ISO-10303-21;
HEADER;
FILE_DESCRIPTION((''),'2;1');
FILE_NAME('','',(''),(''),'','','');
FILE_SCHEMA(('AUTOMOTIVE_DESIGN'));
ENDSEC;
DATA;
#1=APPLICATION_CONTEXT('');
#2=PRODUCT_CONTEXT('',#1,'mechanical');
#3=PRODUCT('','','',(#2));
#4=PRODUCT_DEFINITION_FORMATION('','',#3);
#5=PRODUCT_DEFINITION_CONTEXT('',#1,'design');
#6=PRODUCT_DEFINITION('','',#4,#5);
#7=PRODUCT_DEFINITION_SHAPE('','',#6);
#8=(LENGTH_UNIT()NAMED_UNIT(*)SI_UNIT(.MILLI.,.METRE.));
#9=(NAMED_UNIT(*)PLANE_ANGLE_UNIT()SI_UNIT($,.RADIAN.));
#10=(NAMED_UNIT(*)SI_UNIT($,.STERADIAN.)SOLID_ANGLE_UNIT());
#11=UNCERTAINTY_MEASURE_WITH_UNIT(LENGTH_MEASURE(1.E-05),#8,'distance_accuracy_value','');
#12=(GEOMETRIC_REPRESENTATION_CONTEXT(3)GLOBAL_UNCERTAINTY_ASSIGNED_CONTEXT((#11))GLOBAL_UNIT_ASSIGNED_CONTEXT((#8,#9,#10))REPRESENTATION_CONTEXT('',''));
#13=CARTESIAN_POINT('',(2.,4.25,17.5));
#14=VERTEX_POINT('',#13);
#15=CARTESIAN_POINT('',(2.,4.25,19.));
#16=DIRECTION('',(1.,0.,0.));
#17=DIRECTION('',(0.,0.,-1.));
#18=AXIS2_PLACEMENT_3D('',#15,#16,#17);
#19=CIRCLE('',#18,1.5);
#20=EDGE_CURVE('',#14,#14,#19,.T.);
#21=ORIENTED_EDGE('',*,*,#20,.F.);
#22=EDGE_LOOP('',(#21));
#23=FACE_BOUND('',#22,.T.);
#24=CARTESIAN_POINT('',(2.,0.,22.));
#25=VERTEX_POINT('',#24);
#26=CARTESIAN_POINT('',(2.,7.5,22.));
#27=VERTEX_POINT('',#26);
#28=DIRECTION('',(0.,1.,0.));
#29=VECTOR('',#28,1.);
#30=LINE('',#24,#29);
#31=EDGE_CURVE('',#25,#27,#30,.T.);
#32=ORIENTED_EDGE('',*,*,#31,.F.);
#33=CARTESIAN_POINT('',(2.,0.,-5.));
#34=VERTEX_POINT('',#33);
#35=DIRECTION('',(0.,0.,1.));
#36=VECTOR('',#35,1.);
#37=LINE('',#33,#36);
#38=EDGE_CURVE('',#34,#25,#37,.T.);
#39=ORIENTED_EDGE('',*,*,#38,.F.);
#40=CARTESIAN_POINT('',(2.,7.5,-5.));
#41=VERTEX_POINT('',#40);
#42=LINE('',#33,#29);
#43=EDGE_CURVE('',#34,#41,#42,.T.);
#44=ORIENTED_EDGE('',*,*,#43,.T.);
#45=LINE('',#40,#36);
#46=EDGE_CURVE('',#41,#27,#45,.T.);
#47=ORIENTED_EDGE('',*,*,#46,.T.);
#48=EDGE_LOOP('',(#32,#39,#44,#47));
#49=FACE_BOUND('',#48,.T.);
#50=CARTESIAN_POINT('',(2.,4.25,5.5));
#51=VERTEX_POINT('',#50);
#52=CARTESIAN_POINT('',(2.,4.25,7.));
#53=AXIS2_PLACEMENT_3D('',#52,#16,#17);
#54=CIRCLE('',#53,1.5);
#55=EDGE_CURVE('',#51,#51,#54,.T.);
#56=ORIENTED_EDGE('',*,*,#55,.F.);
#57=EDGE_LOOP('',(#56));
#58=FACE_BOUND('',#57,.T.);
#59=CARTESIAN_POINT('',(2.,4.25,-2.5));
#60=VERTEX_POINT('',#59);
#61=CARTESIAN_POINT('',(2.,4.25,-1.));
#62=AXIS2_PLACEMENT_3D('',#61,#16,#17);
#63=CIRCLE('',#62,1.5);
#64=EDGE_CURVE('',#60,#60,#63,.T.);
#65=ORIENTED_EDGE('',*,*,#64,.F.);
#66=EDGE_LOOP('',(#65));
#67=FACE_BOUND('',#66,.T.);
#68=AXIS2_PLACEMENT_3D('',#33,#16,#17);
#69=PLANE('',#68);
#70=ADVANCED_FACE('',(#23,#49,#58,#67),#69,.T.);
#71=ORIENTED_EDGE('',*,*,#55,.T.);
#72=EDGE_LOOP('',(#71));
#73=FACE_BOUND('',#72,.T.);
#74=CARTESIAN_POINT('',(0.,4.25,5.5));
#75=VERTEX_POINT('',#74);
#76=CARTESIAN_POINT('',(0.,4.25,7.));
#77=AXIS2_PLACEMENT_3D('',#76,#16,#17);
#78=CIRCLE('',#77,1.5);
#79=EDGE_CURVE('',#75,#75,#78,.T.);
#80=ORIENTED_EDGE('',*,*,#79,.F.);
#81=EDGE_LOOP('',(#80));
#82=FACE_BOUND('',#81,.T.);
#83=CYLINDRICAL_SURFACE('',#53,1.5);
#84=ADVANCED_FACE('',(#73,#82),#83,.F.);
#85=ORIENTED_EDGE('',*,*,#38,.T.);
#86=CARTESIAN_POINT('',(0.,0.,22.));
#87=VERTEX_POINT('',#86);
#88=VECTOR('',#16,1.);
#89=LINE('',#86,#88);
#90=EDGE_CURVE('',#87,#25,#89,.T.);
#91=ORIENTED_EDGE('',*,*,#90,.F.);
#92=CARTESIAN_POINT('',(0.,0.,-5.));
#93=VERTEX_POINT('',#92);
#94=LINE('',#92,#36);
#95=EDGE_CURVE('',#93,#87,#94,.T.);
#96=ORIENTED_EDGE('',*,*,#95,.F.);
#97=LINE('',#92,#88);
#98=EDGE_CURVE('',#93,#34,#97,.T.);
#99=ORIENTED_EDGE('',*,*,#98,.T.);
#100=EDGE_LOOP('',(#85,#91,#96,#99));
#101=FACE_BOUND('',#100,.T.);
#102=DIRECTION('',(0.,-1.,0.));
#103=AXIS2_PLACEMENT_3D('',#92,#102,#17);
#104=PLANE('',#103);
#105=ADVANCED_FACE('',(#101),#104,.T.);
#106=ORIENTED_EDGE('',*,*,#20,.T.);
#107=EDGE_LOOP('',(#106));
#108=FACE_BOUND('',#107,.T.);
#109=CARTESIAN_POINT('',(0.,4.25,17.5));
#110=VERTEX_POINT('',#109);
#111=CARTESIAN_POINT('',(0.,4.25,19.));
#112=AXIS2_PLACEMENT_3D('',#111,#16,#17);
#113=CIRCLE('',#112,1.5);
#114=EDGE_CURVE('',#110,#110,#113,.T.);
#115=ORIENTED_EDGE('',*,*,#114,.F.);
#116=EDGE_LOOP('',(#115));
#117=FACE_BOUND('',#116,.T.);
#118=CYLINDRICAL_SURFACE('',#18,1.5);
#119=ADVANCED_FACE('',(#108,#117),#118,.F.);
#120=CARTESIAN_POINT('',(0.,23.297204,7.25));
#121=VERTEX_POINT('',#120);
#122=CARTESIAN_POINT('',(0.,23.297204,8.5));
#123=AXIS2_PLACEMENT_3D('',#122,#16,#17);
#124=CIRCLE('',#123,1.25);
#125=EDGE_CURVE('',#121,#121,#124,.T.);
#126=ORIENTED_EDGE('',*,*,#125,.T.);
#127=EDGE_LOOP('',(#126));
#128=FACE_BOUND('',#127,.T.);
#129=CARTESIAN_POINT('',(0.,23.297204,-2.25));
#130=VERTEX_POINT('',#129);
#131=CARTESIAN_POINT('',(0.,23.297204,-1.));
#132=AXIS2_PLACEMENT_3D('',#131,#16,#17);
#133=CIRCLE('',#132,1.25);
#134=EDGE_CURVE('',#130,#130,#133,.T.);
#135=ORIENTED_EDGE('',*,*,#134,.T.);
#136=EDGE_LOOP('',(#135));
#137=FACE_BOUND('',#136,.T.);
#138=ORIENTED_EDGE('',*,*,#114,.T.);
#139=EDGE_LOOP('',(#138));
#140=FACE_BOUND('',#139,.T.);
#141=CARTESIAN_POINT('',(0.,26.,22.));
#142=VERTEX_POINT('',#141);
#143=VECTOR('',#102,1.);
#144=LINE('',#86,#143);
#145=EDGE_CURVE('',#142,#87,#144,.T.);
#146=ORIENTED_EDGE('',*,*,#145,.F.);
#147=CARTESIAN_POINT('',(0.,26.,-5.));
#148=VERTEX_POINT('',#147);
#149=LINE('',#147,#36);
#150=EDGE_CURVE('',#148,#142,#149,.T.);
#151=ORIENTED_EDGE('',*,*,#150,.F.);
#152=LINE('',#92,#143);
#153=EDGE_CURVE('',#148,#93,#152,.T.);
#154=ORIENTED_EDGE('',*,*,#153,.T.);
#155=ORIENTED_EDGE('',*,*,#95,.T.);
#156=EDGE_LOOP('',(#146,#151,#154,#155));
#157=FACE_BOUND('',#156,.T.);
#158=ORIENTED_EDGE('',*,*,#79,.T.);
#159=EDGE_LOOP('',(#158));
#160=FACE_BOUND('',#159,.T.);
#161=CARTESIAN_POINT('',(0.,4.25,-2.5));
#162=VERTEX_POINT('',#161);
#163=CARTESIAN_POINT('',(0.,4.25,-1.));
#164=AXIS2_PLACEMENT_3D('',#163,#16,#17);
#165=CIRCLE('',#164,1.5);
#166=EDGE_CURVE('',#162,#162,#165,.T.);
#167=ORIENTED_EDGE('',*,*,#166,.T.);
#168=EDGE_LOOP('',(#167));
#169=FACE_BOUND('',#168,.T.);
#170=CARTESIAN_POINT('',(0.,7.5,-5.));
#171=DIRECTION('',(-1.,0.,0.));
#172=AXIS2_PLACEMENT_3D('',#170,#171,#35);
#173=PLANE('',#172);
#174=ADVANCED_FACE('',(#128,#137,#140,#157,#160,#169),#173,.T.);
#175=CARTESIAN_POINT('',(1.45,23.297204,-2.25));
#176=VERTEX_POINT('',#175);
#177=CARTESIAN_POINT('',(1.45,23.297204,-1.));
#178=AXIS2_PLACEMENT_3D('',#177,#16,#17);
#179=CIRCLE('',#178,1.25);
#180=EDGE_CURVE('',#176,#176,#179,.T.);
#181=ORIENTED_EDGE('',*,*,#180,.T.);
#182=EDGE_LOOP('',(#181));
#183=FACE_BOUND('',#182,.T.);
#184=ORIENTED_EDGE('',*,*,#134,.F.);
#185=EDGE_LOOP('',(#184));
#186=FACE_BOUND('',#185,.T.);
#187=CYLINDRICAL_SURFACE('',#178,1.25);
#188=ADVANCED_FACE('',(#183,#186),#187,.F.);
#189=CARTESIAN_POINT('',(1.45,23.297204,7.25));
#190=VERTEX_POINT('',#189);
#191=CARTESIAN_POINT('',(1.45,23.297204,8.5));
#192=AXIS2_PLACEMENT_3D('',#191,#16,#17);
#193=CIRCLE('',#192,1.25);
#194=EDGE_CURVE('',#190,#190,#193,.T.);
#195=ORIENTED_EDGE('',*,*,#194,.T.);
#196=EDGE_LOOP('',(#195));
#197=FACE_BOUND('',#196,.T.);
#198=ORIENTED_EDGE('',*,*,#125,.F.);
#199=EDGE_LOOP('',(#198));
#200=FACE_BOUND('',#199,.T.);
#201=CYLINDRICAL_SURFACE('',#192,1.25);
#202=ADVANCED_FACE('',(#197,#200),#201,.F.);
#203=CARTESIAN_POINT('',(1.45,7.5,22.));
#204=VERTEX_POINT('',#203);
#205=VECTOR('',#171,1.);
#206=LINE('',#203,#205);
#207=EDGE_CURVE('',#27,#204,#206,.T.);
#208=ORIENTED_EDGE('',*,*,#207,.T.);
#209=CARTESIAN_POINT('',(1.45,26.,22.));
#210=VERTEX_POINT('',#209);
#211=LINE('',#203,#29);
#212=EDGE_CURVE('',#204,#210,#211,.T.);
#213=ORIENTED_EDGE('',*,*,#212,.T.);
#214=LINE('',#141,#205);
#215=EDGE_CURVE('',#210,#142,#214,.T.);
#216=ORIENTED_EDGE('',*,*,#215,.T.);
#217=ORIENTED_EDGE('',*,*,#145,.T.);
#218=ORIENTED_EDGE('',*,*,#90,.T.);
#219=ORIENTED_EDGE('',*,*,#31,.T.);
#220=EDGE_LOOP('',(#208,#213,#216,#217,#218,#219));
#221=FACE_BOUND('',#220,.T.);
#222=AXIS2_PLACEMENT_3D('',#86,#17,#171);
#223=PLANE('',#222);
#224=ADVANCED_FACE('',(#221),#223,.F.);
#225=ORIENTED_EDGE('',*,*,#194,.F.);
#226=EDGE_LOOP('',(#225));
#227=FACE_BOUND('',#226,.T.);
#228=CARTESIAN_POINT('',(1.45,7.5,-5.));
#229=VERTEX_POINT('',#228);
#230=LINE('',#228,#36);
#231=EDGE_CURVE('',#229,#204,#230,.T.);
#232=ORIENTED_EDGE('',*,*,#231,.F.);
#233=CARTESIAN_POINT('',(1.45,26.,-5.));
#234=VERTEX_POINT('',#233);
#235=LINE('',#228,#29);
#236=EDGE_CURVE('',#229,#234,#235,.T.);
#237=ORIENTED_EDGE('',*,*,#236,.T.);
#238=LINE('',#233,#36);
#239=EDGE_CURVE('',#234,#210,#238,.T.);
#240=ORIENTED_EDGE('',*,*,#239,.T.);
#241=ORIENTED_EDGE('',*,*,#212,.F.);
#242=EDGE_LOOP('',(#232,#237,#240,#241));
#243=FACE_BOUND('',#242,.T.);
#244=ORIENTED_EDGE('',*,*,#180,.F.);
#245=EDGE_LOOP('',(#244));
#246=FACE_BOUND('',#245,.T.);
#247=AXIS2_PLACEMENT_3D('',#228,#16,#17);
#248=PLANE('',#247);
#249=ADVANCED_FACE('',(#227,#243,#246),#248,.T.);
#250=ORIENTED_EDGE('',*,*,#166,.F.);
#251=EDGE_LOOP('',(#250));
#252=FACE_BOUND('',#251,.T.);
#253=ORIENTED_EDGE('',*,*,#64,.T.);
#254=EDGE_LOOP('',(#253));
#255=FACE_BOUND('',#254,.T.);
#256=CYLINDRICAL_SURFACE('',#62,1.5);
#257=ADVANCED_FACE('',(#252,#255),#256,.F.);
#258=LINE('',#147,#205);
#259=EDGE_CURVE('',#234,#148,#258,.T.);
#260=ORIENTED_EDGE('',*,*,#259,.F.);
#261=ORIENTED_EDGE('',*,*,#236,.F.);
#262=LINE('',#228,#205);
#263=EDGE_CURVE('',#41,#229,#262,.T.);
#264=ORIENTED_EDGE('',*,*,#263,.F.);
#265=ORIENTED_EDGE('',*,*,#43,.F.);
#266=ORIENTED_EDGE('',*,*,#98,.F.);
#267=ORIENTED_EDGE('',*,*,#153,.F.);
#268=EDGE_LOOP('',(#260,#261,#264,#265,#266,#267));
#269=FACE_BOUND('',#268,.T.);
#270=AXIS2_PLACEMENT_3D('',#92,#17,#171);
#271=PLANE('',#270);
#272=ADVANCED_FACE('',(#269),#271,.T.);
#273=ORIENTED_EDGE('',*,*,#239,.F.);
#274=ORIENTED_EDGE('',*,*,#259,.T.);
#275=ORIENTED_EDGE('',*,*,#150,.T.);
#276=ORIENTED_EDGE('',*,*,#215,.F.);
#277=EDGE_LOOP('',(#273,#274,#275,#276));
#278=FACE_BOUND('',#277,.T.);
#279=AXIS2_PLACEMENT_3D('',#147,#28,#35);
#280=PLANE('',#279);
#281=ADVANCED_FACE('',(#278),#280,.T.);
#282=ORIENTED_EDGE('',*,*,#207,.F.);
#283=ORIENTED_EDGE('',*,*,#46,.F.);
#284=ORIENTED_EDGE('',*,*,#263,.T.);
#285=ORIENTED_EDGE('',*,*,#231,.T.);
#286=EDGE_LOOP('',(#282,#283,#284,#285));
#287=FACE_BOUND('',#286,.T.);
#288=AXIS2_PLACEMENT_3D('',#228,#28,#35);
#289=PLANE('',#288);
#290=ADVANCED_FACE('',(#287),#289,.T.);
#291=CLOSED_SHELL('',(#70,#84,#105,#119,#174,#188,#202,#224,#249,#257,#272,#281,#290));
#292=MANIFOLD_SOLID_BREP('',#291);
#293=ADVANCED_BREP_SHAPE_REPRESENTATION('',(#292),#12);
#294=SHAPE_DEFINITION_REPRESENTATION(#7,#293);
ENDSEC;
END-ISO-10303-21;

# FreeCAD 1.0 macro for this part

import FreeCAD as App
import Part
import Sketcher
from FreeCAD import Vector
Q = App.Units.Quantity


def add_polygon(sketch, points):
    """Adds a closed chain of lines whose ends are joined by coincident constraints."""
    first, n = sketch.GeometryCount, len(points)
    for a, b in zip(points, points[1:] + points[:1]):
        sketch.addGeometry(Part.LineSegment(App.Vector(*a, 0), App.Vector(*b, 0)), False)
    for i in range(n):
        sketch.addConstraint(Sketcher.Constraint("Coincident", first + i, 2, first + (i + 1) % n, 1))

doc = App.newDocument("Part")
body = doc.addObject("PartDesign::Body", "Body")

sketch1 = body.newObject("Sketcher::SketchObject", "Sketch")
sketch1.AttachmentSupport = (doc.getObject("XY_Plane"), [""])
sketch1.MapMode = "FlatFace"
add_polygon(sketch1, [(0, 0), (2, 0), (2, 7.5), (1.45, 7.5), (1.45, 26), (0, 26)])
sketch1.addConstraint([
    Sketcher.Constraint("Horizontal", 0),
    Sketcher.Constraint("Vertical", 1),
    Sketcher.Constraint("Horizontal", 2),
    Sketcher.Constraint("Vertical", 3),
    Sketcher.Constraint("Horizontal", 4),
    Sketcher.Constraint("Vertical", 5),
    Sketcher.Constraint("Coincident", 5, 2, -1, 1),
    Sketcher.Constraint("DistanceX", 0, 1, 0, 2, Q("2 mm")),
    Sketcher.Constraint("DistanceY", 5, 2, 5, 1, Q("26 mm")),
    Sketcher.Constraint("DistanceY", 1, 1, 1, 2, Q("7.5 mm")),
    Sketcher.Constraint("DistanceX", 2, 2, 2, 1, Q("0.55 mm")),
])
pad1 = body.newObject("PartDesign::Pad", "Pad")
pad1.Profile = sketch1
pad1.Type = "TwoLengths"
pad1.Length = 22
pad1.Length2 = 5

sketch2 = body.newObject("Sketcher::SketchObject", "Sketch001")
sketch2.AttachmentSupport = (doc.getObject("YZ_Plane"), [""])
sketch2.MapMode = "FlatFace"
sketch2.AttachmentOffset = App.Placement(Vector(0, 0, 2), App.Rotation())
sketch2.addGeometry([
    Part.Circle(Vector(4.25, 7, 0), Vector(0, 0, 1), 1.5),
    Part.Circle(Vector(4.25, 19, 0), Vector(0, 0, 1), 1.5),
    Part.Circle(Vector(4.25, -1, 0), Vector(0, 0, 1), 1.5),
], False)
sketch2.addConstraint([
    Sketcher.Constraint("Equal", 0, 1),
    Sketcher.Constraint("Equal", 1, 2),
    Sketcher.Constraint("Vertical", 0, 3, 1, 3),
    Sketcher.Constraint("Vertical", 1, 3, 2, 3),
    Sketcher.Constraint("Diameter", 0, Q("3 mm")),
    Sketcher.Constraint("DistanceY", -1, 1, 0, 3, Q("7 mm")),
    Sketcher.Constraint("DistanceY", -1, 1, 1, 3, Q("19 mm")),
    Sketcher.Constraint("DistanceY", 2, 3, -1, 1, Q("1 mm")),
    Sketcher.Constraint("DistanceX", -1, 1, 0, 3, Q("4.25 mm")),
])
doc.recompute()
hole = body.newObject("PartDesign::Hole", "Hole")
hole.Profile = sketch2
hole.ThreadType = "None"
hole.Diameter = 3
hole.DepthType = "ThroughAll"

sketch3 = body.newObject("Sketcher::SketchObject", "Sketch002")
sketch3.AttachmentSupport = (doc.getObject("YZ_Plane"), [""])
sketch3.MapMode = "FlatFace"
sketch3.AttachmentOffset = App.Placement(Vector(0, 0, 1.45), App.Rotation())
sketch3.addGeometry([
    Part.Circle(Vector(23.297204, -1, 0), Vector(0, 0, 1), 1.25),
    Part.Circle(Vector(23.297204, 8.5, 0), Vector(0, 0, 1), 1.25),
], False)
sketch3.addConstraint([
    Sketcher.Constraint("Equal", 0, 1),
    Sketcher.Constraint("Vertical", 0, 3, 1, 3),
    Sketcher.Constraint("Diameter", 0, Q("2.5 mm")),
    Sketcher.Constraint("DistanceY", 0, 3, -1, 1, Q("1 mm")),
    Sketcher.Constraint("DistanceY", -1, 1, 1, 3, Q("8.5 mm")),
    Sketcher.Constraint("DistanceX", -1, 1, 0, 3, Q("23.297204 mm")),
])
doc.recompute()
hole2 = body.newObject("PartDesign::Hole", "Hole001")
hole2.Profile = sketch3
hole2.ThreadType = "None"
hole2.Diameter = 2.5
hole2.DepthType = "ThroughAll"

doc.recompute()
